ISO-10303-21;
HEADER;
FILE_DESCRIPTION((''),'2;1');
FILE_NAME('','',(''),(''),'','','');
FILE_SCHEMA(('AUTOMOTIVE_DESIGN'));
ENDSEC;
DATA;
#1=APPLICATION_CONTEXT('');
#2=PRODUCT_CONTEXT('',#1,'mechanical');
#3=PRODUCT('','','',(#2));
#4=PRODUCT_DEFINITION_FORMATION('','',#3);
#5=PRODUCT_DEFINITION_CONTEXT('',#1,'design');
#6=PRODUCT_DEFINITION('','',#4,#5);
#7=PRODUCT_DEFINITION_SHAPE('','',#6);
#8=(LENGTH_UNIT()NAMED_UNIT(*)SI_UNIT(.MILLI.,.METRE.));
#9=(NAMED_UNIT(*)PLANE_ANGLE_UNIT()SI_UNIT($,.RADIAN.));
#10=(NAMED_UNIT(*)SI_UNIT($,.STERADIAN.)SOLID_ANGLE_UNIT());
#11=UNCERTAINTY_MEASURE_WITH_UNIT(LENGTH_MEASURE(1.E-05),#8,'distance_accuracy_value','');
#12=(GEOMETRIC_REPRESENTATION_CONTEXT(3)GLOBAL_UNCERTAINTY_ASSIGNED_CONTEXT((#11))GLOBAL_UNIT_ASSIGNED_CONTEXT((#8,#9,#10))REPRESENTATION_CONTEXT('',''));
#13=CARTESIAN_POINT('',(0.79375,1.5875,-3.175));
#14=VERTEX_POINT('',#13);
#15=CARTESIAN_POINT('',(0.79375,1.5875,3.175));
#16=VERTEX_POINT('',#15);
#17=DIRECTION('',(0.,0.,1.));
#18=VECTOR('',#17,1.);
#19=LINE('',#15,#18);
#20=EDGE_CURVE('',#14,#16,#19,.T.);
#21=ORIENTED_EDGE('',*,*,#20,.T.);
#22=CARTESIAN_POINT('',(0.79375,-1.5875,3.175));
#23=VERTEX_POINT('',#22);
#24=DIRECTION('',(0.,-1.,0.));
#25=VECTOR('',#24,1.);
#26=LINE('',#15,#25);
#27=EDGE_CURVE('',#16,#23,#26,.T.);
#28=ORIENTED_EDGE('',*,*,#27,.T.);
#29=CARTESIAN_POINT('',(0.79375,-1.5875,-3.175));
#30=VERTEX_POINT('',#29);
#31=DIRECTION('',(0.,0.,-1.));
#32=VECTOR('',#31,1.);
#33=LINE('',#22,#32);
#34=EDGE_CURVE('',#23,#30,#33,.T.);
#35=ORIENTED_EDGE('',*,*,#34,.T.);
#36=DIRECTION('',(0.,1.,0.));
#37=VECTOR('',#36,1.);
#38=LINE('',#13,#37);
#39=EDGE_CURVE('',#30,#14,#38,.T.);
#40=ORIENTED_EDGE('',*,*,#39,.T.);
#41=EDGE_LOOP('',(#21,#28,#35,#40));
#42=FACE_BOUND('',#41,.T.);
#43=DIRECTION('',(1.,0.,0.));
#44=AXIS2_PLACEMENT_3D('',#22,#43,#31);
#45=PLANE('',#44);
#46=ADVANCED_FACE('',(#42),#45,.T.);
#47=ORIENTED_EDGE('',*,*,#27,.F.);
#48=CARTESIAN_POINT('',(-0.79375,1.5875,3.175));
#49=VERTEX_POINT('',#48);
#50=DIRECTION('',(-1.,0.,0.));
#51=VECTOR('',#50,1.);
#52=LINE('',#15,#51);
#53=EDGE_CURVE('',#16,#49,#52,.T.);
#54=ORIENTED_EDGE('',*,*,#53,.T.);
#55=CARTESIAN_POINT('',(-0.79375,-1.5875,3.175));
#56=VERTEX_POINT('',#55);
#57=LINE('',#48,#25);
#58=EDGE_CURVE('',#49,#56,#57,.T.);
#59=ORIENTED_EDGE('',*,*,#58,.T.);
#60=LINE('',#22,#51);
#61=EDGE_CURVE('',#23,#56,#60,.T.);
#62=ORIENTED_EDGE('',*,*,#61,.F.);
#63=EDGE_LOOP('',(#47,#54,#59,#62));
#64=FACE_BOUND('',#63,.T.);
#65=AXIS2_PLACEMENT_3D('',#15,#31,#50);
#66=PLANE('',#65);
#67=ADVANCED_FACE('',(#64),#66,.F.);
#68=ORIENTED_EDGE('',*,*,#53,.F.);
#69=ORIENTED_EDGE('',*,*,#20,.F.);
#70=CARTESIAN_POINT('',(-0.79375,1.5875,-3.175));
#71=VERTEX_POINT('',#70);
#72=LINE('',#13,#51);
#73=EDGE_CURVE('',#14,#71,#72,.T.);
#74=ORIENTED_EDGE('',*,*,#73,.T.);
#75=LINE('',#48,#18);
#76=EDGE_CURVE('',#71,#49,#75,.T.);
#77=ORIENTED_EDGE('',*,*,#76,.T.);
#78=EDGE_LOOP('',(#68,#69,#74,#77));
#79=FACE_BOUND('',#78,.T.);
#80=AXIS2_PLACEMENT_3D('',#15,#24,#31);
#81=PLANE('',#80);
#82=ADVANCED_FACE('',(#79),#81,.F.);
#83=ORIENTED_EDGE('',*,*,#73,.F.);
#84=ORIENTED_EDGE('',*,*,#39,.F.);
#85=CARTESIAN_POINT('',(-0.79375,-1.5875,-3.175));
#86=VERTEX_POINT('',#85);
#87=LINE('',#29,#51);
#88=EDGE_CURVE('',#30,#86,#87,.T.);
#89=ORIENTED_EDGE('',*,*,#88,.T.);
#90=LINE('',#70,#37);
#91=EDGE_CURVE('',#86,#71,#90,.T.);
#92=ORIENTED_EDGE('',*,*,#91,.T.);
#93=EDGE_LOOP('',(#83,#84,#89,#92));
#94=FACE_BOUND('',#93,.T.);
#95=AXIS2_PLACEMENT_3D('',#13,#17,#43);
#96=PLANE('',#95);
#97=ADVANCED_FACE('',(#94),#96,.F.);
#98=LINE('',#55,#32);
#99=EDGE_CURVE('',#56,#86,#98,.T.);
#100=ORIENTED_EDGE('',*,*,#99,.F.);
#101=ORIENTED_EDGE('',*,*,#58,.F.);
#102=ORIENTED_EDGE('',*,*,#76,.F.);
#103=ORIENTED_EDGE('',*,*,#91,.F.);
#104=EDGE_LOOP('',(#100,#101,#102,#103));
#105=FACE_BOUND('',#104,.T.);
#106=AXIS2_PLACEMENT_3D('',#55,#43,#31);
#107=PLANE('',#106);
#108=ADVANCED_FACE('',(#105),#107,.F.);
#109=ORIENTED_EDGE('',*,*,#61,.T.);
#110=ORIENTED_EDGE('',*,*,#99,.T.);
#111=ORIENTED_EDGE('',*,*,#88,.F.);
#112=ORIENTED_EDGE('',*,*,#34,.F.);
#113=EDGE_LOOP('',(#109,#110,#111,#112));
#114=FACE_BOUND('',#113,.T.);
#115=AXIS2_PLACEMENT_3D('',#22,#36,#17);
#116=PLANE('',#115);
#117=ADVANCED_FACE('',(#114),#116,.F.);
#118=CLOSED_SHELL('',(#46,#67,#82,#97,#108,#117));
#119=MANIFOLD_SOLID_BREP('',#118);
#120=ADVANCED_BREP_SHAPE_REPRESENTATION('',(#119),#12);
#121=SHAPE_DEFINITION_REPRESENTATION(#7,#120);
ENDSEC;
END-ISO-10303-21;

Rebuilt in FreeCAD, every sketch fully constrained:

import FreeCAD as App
import Part
import Sketcher
Q = App.Units.Quantity


def add_polygon(sketch, points):
    """Adds a closed chain of lines whose ends are joined by coincident constraints."""
    first, n = sketch.GeometryCount, len(points)
    for a, b in zip(points, points[1:] + points[:1]):
        sketch.addGeometry(Part.LineSegment(App.Vector(*a, 0), App.Vector(*b, 0)), False)
    for i in range(n):
        sketch.addConstraint(Sketcher.Constraint("Coincident", first + i, 2, first + (i + 1) % n, 1))

doc = App.newDocument("Part")
body = doc.addObject("PartDesign::Body", "Body")

sketch1 = doc.addObject("Sketcher::SketchObject", "Sketch")
body.addObject(sketch1)
sketch1.AttachmentSupport = (doc.YZ_Plane, [""])
sketch1.MapMode = "FlatFace"
add_polygon(sketch1, [(1.6, 3.2), (-1.6, 3.2), (-1.6, -3.2), (1.6, -3.2)])
sketch1.addConstraint([
    Sketcher.Constraint("Horizontal", 0),
    Sketcher.Constraint("Vertical", 1),
    Sketcher.Constraint("Horizontal", 2),
    Sketcher.Constraint("Vertical", 3),
    Sketcher.Constraint("Symmetric", 0, 2, 2, 2, -1, 1),
    Sketcher.Constraint("DistanceY", 1, 2, 1, 1, Q("0.25 in")),
    Sketcher.Constraint("DistanceX", 0, 2, 0, 1, Q("0.125 in")),
])
pad1 = doc.addObject("PartDesign::Pad", "Pad")
body.addObject(pad1)
pad1.Profile = sketch1
pad1.Length = Q("0.0625 in")
pad1.Midplane = True

doc.recompute()
